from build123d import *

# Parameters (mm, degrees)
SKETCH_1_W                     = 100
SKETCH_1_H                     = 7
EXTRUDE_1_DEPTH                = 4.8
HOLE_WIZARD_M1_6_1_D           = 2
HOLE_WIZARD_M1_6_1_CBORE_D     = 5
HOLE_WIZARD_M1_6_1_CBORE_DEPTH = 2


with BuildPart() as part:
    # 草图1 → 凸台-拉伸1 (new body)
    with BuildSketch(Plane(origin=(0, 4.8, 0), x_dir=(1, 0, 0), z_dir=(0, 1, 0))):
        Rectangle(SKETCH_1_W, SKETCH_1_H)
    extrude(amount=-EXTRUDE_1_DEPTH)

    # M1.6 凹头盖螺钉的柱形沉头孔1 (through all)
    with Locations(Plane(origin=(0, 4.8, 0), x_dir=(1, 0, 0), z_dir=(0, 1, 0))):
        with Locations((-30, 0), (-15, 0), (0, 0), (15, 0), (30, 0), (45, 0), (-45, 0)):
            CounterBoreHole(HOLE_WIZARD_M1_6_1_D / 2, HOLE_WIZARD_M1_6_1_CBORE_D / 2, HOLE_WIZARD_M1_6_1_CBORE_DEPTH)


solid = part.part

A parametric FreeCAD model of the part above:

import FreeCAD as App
import Part
import Sketcher

V = App.Vector
Q = App.Units.Quantity

doc = App.newDocument("Part")
body = doc.addObject("PartDesign::Body", "Body")

sketch1 = doc.addObject("Sketcher::SketchObject", "Sketch")
body.addObject(sketch1)
sketch1.AttachmentSupport = (doc.XZ_Plane, [""])
sketch1.MapMode = "FlatFace"
sketch1.AttachmentOffset = App.Placement(V(0, 0, -4.8), App.Rotation())
sketch1.addGeometry([
    Part.LineSegment(V(-50, -4, 0), V(-50, 4, 0)),
    Part.LineSegment(V(-50, 4, 0), V(50, 4, 0)),
    Part.LineSegment(V(50, 4, 0), V(50, -4, 0)),
    Part.LineSegment(V(50, -4, 0), V(-50, -4, 0)),
], False)
sketch1.addConstraint([
    Sketcher.Constraint("Coincident", 0, 2, 1, 1),
    Sketcher.Constraint("Coincident", 1, 2, 2, 1),
    Sketcher.Constraint("Coincident", 2, 2, 3, 1),
    Sketcher.Constraint("Coincident", 3, 2, 0, 1),
    Sketcher.Constraint("Vertical", 0),
    Sketcher.Constraint("Horizontal", 1),
    Sketcher.Constraint("Vertical", 2),
    Sketcher.Constraint("Horizontal", 3),
    Sketcher.Constraint("Symmetric", 0, 2, 2, 2, -1, 1),
    Sketcher.Constraint("DistanceX", 1, 1, 1, 2, Q("100 mm")),
    Sketcher.Constraint("DistanceY", 0, 1, 0, 2, Q("7 mm")),
])
pad1 = doc.addObject("PartDesign::Pad", "Pad")
body.addObject(pad1)
pad1.Profile = sketch1
pad1.Length = 4.8

sketch2 = doc.addObject("Sketcher::SketchObject", "Sketch001")
body.addObject(sketch2)
sketch2.AttachmentSupport = (doc.XZ_Plane, [""])
sketch2.MapMode = "FlatFace"
sketch2.AttachmentOffset = App.Placement(V(0, 0, -4.8), App.Rotation())
sketch2.addGeometry([
    Part.Circle(V(-30, 0, 0), V(0, 0, 1), 1),
    Part.Circle(V(-15, 0, 0), V(0, 0, 1), 1),
    Part.Circle(V(0, 0, 0), V(0, 0, 1), 1),
    Part.Circle(V(15, 0, 0), V(0, 0, 1), 1),
    Part.Circle(V(30, 0, 0), V(0, 0, 1), 1),
    Part.Circle(V(45, 0, 0), V(0, 0, 1), 1),
    Part.Circle(V(-45, 0, 0), V(0, 0, 1), 1),
], False)
sketch2.addConstraint([
    Sketcher.Constraint("Coincident", 2, 3, -1, 1),
    Sketcher.Constraint("Equal", 0, 1),
    Sketcher.Constraint("Equal", 1, 2),
    Sketcher.Constraint("Equal", 2, 3),
    Sketcher.Constraint("Equal", 3, 4),
    Sketcher.Constraint("Equal", 4, 5),
    Sketcher.Constraint("Equal", 5, 6),
    Sketcher.Constraint("Symmetric", 1, 3, 3, 3, -1, 1),
    Sketcher.Constraint("Symmetric", 0, 3, 4, 3, -1, 1),
    Sketcher.Constraint("Symmetric", 5, 3, 6, 3, -1, 1),
    Sketcher.Constraint("PointOnObject", 0, 3, -1),
    Sketcher.Constraint("PointOnObject", 1, 3, -1),
    Sketcher.Constraint("PointOnObject", 5, 3, -1),
    Sketcher.Constraint("Diameter", 0, Q("2 mm")),
    Sketcher.Constraint("DistanceX", 0, 3, -1, 1, Q("30 mm")),
    Sketcher.Constraint("DistanceX", 1, 3, -1, 1, Q("15 mm")),
    Sketcher.Constraint("DistanceX", -1, 1, 5, 3, Q("45 mm")),
])
doc.recompute()
hole = doc.addObject("PartDesign::Hole", "Hole")
body.addObject(hole)
hole.Profile = sketch2
hole.ThreadType = "None"
hole.Diameter = 2
hole.DepthType = "ThroughAll"
hole.HoleCutType = "Counterbore"
hole.HoleCutDiameter = 5
hole.HoleCutDepth = 2
hole.Reversed = True

doc.recompute()
